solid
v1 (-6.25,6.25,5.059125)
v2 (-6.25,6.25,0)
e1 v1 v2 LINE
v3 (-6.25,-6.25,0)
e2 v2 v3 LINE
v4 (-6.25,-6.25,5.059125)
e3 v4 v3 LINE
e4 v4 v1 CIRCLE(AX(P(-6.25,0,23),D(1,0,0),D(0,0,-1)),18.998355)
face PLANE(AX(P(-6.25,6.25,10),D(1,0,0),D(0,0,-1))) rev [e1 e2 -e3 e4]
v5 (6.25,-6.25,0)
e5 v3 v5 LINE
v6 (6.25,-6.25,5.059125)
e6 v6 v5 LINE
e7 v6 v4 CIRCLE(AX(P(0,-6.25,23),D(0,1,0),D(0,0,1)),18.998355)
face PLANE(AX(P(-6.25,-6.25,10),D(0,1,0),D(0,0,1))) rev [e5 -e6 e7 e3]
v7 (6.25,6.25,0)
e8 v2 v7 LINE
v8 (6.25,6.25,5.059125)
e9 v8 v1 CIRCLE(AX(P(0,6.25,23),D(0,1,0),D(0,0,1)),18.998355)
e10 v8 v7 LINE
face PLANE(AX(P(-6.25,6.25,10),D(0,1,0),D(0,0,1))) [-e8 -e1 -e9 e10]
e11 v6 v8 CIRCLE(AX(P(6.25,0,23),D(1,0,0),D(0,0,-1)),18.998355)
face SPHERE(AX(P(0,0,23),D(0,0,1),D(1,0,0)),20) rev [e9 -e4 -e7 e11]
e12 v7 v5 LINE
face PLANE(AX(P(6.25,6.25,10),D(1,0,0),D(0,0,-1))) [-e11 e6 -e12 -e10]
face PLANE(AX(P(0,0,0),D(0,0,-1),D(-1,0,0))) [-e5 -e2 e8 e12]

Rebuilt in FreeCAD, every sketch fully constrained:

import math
import FreeCAD as App
import Part
import Sketcher


def add_polygon(sketch, points):
    """Adds a closed chain of lines whose ends are joined by coincident constraints."""
    first, n = sketch.GeometryCount, len(points)
    for a, b in zip(points, points[1:] + points[:1]):
        sketch.addGeometry(Part.LineSegment(App.Vector(*a, 0), App.Vector(*b, 0)), False)
    for i in range(n):
        sketch.addConstraint(Sketcher.Constraint("Coincident", first + i, 2, first + (i + 1) % n, 1))

doc = App.newDocument("Part")
body = doc.addObject("PartDesign::Body", "Body")

sketch1 = body.newObject("Sketcher::SketchObject", "Sketch")
sketch1.AttachmentSupport = (doc.getObject("XY_Plane"), [""])
sketch1.MapMode = "FlatFace"
add_polygon(sketch1, [(-6, 6), (-6, -6), (6, -6), (6, 6)])
sketch1.addConstraint([
    Sketcher.Constraint("Vertical", 0),
    Sketcher.Constraint("Horizontal", 1),
    Sketcher.Constraint("Vertical", 2),
    Sketcher.Constraint("Horizontal", 3),
    Sketcher.Constraint("Symmetric", 0, 2, 2, 2, -1, 1),
    Sketcher.Constraint("Equal", 3, 0),
    Sketcher.Constraint("DistanceX", 1, 1, 1, 2, 12.5),
])
pad1 = body.newObject("PartDesign::Pad", "Pad")
pad1.Profile = sketch1
pad1.Length = 10

sketch2 = body.newObject("Sketcher::SketchObject", "Sketch001")
sketch2.AttachmentSupport = (doc.getObject("XZ_Plane"), [""])
sketch2.MapMode = "FlatFace"
sketch2.addGeometry([
    Part.LineSegment(App.Vector(0, 19, 0), App.Vector(19, 19, 0)),
    Part.ArcOfCircle(Part.Circle(App.Vector(0, 23, 0), App.Vector(0, 0, 1), 20), math.radians(-90), math.radians(-13)),
    Part.LineSegment(App.Vector(0, 3, 0), App.Vector(0, 19, 0)),
], False)
sketch2.addConstraint([
    Sketcher.Constraint("Coincident", 0, 2, 1, 2),
    Sketcher.Constraint("Coincident", 1, 1, 2, 1),
    Sketcher.Constraint("Coincident", 2, 2, 0, 1),
    Sketcher.Constraint("Horizontal", 0),
    Sketcher.Constraint("Vertical", 2),
    Sketcher.Constraint("PointOnObject", 1, 3, -2),
    Sketcher.Constraint("PointOnObject", 1, 1, -2),
    Sketcher.Constraint("Radius", 1, 20.0),
    Sketcher.Constraint("DistanceY", -1, 1, 1, 3, 23.0),
    Sketcher.Constraint("DistanceX", 0, 1, 0, 2, 19.496909),
])
groove = body.newObject("PartDesign::Groove", "Groove")
groove.Profile = sketch2
groove.ReferenceAxis = (sketch2, ["V_Axis"])
groove.Angle = 360

doc.recompute()
